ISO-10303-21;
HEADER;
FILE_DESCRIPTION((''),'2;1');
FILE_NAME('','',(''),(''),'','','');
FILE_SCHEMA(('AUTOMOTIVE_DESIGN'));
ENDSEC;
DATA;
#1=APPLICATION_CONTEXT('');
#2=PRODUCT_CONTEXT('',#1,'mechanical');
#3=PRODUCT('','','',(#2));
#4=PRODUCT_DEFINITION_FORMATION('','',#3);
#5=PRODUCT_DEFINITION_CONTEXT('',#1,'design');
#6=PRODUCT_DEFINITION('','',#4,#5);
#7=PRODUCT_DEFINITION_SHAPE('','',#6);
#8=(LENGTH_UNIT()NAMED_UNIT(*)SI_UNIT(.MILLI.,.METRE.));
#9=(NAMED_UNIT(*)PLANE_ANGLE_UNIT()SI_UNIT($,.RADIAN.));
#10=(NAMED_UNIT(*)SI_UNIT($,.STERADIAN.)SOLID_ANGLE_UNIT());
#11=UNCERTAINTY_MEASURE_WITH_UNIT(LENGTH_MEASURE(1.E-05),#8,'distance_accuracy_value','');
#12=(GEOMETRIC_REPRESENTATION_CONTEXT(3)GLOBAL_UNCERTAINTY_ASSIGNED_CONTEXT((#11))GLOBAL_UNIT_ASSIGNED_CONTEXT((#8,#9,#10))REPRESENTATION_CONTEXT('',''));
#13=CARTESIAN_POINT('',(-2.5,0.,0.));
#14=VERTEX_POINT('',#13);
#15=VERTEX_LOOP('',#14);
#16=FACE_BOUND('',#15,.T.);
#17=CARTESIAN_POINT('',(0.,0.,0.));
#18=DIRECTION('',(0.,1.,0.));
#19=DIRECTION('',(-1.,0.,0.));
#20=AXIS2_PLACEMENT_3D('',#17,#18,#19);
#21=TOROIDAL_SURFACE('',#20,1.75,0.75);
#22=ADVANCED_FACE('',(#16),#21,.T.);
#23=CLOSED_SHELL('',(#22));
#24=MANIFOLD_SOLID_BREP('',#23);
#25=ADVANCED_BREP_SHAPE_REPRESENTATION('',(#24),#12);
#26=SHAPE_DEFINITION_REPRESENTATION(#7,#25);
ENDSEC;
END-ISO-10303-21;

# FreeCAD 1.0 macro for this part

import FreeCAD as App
import Part
import Sketcher
from FreeCAD import Vector
Q = App.Units.Quantity

doc = App.newDocument("Part")
body = doc.addObject("PartDesign::Body", "Body")

# Sketch on XY plane
sketch1 = doc.addObject("Sketcher::SketchObject", "Sketch")
body.addObject(sketch1)
sketch1.AttachmentSupport = (doc.XY_Plane, [""])
sketch1.MapMode = "FlatFace"
sketch1.addGeometry(Part.Circle(Vector(1.8, 0, 0), Vector(0, 0, 1), 0.8), False)
sketch1.addConstraint([
    Sketcher.Constraint("PointOnObject", 0, 3, -1),
    Sketcher.Constraint("Diameter", 0, Q("1.5 mm")),
    Sketcher.Constraint("DistanceX", -1, 1, 0, 3, Q("1.75 mm")),
])
revolution = doc.addObject("PartDesign::Revolution", "Revolution")
body.addObject(revolution)
revolution.Profile = sketch1
revolution.ReferenceAxis = (sketch1, ["V_Axis"])
revolution.Angle = 360

doc.recompute()
